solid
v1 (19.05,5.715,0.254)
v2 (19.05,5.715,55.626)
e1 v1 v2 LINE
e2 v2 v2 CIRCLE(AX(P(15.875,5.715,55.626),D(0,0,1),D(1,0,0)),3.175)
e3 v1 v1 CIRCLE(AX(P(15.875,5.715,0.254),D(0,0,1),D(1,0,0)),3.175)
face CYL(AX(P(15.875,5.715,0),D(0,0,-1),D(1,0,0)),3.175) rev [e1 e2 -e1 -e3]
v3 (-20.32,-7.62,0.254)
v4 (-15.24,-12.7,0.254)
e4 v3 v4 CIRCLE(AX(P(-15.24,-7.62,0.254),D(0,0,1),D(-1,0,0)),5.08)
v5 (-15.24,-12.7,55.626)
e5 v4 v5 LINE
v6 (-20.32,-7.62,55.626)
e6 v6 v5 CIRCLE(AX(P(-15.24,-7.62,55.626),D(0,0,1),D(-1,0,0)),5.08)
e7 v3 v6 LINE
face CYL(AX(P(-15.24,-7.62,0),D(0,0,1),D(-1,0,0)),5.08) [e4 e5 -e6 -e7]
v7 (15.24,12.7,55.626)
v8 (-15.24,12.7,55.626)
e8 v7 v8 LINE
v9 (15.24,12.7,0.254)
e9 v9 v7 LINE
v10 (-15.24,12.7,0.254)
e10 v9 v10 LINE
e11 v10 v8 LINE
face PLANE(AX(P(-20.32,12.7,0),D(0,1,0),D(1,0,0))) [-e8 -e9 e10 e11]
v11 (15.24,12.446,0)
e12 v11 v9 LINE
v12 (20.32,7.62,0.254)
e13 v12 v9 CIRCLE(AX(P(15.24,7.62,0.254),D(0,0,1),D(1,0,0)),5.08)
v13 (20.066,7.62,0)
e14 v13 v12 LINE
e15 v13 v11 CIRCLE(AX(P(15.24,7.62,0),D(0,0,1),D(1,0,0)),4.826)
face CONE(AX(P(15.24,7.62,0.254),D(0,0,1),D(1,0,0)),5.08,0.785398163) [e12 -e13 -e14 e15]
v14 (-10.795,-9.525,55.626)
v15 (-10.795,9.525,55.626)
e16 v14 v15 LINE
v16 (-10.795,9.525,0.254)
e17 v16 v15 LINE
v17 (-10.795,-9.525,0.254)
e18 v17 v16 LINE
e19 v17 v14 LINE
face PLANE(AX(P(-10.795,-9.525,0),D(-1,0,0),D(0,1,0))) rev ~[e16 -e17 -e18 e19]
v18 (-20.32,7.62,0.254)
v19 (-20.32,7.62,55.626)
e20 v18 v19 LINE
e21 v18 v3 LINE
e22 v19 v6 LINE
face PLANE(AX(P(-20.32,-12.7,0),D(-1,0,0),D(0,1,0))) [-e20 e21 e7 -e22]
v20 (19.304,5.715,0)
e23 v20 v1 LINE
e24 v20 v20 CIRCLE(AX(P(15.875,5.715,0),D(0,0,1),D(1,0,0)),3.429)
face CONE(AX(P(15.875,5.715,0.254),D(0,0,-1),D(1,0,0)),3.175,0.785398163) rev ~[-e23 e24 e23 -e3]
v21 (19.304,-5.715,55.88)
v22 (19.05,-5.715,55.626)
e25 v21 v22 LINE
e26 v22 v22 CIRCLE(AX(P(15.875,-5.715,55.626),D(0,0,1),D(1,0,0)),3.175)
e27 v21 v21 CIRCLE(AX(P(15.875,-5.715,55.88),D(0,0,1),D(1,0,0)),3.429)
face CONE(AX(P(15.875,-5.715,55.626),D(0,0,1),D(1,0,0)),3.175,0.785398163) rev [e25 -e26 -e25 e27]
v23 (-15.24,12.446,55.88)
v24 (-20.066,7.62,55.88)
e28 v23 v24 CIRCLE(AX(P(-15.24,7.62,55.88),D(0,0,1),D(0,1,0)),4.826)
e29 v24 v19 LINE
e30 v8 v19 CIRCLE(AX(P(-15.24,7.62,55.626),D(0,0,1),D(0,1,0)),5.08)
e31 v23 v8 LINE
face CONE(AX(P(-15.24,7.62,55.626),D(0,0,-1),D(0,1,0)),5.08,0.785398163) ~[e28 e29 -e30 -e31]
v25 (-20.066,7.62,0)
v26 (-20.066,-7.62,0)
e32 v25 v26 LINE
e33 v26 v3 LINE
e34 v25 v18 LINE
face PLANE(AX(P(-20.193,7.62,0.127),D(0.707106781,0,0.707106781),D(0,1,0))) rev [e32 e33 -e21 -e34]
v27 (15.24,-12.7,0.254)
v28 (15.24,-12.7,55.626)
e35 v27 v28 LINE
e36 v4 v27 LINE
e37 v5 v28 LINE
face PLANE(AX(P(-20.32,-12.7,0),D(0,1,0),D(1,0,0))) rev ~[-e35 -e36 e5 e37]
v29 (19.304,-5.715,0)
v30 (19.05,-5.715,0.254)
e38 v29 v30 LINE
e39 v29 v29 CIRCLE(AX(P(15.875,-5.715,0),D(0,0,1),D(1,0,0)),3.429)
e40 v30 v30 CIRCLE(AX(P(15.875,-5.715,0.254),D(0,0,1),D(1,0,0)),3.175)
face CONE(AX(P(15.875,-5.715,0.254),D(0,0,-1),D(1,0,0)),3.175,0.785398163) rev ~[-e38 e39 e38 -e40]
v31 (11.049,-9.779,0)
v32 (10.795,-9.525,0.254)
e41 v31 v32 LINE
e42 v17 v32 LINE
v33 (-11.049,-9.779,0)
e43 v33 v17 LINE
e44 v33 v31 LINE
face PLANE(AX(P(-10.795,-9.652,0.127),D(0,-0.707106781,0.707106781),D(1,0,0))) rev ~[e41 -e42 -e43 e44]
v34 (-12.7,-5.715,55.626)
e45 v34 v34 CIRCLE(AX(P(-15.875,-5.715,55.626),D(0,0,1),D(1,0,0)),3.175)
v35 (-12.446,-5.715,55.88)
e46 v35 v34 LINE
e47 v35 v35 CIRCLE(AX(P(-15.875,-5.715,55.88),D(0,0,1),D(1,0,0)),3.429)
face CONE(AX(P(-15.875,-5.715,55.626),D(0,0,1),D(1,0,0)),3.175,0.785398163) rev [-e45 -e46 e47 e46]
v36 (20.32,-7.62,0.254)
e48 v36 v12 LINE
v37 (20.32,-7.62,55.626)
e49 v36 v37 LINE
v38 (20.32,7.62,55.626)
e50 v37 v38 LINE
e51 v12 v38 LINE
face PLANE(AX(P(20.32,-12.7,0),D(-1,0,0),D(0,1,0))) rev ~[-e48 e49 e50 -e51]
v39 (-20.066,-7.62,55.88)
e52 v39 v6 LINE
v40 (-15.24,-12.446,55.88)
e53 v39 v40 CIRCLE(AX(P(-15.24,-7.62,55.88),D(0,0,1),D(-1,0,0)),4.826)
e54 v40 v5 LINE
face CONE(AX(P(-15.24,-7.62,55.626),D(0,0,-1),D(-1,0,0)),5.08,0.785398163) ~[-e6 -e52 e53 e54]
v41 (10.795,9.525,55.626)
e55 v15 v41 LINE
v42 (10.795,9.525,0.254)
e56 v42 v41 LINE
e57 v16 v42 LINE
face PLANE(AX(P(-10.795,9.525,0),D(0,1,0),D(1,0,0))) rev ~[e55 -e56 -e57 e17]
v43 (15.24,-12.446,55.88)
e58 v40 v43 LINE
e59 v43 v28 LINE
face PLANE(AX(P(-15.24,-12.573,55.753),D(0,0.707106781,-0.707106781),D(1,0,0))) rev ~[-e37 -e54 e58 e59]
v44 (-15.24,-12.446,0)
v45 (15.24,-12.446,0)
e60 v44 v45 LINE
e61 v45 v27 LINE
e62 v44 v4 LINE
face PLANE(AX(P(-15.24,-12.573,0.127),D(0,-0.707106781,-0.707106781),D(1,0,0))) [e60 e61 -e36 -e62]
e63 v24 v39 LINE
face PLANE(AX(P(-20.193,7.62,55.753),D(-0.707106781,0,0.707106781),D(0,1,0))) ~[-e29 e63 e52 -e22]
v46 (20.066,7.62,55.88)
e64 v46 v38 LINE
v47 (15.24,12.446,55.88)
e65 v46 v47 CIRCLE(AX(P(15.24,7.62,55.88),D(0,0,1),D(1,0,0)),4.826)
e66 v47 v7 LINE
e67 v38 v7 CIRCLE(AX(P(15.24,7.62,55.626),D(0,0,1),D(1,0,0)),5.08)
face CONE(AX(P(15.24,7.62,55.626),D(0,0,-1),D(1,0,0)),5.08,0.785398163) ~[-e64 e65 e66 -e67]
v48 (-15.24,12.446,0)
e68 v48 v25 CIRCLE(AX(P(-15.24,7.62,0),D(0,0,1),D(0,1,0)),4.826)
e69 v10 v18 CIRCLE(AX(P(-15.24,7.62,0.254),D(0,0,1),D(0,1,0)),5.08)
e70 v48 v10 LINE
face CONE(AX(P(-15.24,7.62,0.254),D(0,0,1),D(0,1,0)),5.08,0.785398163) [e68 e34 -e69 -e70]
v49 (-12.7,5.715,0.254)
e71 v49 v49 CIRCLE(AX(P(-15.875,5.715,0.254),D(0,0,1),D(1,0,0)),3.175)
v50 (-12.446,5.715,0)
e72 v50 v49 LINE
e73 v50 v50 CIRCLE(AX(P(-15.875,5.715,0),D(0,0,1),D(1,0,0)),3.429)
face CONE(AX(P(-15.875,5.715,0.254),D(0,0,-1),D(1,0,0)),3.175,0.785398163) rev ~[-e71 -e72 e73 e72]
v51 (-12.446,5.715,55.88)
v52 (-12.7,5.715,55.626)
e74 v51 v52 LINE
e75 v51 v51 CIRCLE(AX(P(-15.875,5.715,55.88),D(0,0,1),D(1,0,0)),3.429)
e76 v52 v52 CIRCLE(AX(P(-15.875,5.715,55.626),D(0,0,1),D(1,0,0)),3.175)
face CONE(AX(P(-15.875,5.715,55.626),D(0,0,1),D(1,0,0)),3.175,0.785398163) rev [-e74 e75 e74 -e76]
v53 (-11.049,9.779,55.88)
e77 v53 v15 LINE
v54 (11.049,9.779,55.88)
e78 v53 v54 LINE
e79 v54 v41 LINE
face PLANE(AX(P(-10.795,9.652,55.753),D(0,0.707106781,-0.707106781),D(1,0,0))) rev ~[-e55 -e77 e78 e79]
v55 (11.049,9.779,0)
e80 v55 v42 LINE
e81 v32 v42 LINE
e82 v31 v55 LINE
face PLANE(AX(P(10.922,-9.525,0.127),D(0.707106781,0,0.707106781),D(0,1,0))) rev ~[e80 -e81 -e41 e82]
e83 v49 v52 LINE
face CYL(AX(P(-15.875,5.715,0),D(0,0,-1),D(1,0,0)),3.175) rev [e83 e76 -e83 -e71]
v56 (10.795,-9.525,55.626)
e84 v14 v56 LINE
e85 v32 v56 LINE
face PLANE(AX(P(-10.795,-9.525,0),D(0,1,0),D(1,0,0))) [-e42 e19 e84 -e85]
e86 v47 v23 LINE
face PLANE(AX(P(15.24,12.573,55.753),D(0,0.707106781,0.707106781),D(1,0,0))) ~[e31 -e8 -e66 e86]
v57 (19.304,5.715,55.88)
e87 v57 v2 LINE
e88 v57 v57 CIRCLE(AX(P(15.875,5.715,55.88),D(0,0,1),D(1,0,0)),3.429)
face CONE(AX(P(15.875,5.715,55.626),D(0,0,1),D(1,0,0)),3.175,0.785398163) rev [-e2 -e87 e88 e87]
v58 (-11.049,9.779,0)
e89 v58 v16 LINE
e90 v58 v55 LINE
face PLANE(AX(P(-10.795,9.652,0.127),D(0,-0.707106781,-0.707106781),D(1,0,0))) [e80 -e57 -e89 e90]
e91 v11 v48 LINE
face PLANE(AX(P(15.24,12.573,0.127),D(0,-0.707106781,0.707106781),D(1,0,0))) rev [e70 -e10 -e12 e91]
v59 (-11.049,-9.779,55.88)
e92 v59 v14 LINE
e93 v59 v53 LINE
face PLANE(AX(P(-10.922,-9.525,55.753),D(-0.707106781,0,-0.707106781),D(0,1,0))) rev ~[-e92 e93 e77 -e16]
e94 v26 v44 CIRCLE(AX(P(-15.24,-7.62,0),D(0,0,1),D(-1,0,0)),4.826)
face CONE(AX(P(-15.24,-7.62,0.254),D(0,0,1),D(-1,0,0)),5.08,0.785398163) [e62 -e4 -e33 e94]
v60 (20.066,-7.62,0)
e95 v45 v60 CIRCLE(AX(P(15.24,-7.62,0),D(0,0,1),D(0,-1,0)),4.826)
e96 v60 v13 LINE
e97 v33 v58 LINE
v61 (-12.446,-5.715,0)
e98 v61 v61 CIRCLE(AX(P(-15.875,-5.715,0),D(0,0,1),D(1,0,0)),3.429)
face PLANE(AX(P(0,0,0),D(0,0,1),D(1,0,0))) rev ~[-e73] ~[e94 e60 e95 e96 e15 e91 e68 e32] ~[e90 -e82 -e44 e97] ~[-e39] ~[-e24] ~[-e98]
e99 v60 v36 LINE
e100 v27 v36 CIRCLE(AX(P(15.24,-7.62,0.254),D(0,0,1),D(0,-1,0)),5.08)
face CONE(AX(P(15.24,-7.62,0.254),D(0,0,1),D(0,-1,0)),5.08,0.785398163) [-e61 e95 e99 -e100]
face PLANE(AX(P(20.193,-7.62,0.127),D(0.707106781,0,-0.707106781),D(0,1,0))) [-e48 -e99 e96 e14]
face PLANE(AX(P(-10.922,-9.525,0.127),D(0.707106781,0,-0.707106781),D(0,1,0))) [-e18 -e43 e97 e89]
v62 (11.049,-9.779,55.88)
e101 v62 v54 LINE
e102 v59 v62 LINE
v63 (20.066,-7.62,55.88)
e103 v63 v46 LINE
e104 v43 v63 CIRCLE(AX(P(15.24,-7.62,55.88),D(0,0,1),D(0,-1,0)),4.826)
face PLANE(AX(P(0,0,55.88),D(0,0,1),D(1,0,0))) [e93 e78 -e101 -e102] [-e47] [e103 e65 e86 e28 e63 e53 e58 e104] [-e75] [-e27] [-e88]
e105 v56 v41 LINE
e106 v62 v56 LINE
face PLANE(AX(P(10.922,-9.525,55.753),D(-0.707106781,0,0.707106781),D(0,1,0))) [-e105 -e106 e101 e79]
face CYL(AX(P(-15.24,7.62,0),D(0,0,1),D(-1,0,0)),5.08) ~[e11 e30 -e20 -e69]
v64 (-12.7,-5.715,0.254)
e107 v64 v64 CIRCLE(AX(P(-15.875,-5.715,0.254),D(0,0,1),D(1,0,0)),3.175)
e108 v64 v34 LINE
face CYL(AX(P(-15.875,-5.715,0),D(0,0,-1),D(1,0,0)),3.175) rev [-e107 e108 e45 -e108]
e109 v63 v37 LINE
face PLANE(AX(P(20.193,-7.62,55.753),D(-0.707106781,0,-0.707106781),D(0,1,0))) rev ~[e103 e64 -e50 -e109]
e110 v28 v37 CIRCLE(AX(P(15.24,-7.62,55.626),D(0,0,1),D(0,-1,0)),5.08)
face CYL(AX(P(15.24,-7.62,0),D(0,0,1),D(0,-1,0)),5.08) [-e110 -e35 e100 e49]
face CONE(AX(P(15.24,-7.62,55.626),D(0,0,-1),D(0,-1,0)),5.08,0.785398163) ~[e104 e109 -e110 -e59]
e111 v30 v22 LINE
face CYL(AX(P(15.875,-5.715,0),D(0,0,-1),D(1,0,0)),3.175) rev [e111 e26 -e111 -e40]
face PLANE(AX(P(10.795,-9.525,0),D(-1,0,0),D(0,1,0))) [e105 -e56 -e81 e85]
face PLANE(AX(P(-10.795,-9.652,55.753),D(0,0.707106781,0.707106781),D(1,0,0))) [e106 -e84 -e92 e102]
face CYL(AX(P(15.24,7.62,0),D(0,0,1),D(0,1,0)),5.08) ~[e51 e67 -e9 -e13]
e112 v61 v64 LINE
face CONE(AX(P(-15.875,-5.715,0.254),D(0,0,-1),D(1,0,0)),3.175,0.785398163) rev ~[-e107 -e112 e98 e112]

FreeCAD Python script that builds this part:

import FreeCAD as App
import Part
import Sketcher
from FreeCAD import Vector
Q = App.Units.Quantity


def edges_at(feature, points):
    """Names of the edges that pass closest to the given points."""
    edges = feature.Shape.Edges
    near = lambda p: min(range(len(edges)), key=lambda i: edges[i].distToShape(Part.Vertex(*p))[0])
    return sorted({f"Edge{near(p) + 1}" for p in points})

doc = App.newDocument("Part")
body = doc.addObject("PartDesign::Body", "Body")

sketch1 = body.newObject("Sketcher::SketchObject", "Sketch")
sketch1.AttachmentSupport = (doc.getObject("XY_Plane"), [""])
sketch1.MapMode = "FlatFace"
sketch1.addGeometry(Part.LineSegment(Vector(-20.32, 12.7, 0), Vector(-20.32, -12.7, 0)), False)
sketch1.addGeometry(Part.LineSegment(Vector(-20.32, -12.7, 0), Vector(20.32, -12.7, 0)), False)
sketch1.addGeometry(Part.LineSegment(Vector(20.32, -12.7, 0), Vector(20.32, 12.7, 0)), False)
sketch1.addGeometry(Part.LineSegment(Vector(20.32, 12.7, 0), Vector(-20.32, 12.7, 0)), False)
sketch1.addGeometry(Part.Circle(Vector(-15.875, -5.715, 0), Vector(0, 0, 1), 3.175), False)
sketch1.addGeometry(Part.Circle(Vector(15.875, -5.715, 0), Vector(0, 0, 1), 3.175), False)
sketch1.addGeometry(Part.Circle(Vector(-15.875, 5.715, 0), Vector(0, 0, 1), 3.175), False)
sketch1.addGeometry(Part.LineSegment(Vector(10.795, -9.525, 0), Vector(-10.795, -9.525, 0)), False)
sketch1.addGeometry(Part.LineSegment(Vector(-10.795, -9.525, 0), Vector(-10.795, 9.525, 0)), False)
sketch1.addGeometry(Part.LineSegment(Vector(-10.795, 9.525, 0), Vector(10.795, 9.525, 0)), False)
sketch1.addGeometry(Part.LineSegment(Vector(10.795, 9.525, 0), Vector(10.795, -9.525, 0)), False)
sketch1.addGeometry(Part.Circle(Vector(15.875, 5.715, 0), Vector(0, 0, 1), 3.175), False)
sketch1.addConstraint(Sketcher.Constraint("Coincident", 0, 2, 1, 1))
sketch1.addConstraint(Sketcher.Constraint("Coincident", 1, 2, 2, 1))
sketch1.addConstraint(Sketcher.Constraint("Coincident", 2, 2, 3, 1))
sketch1.addConstraint(Sketcher.Constraint("Coincident", 3, 2, 0, 1))
sketch1.addConstraint(Sketcher.Constraint("Coincident", 7, 2, 8, 1))
sketch1.addConstraint(Sketcher.Constraint("Coincident", 8, 2, 9, 1))
sketch1.addConstraint(Sketcher.Constraint("Coincident", 9, 2, 10, 1))
sketch1.addConstraint(Sketcher.Constraint("Coincident", 10, 2, 7, 1))
sketch1.addConstraint(Sketcher.Constraint("Vertical", 0))
sketch1.addConstraint(Sketcher.Constraint("Horizontal", 1))
sketch1.addConstraint(Sketcher.Constraint("Vertical", 2))
sketch1.addConstraint(Sketcher.Constraint("Horizontal", 3))
sketch1.addConstraint(Sketcher.Constraint("Horizontal", 7))
sketch1.addConstraint(Sketcher.Constraint("Vertical", 8))
sketch1.addConstraint(Sketcher.Constraint("Horizontal", 9))
sketch1.addConstraint(Sketcher.Constraint("Vertical", 10))
sketch1.addConstraint(Sketcher.Constraint("Equal", 4, 5))
sketch1.addConstraint(Sketcher.Constraint("Equal", 5, 6))
sketch1.addConstraint(Sketcher.Constraint("Equal", 6, 11))
sketch1.addConstraint(Sketcher.Constraint("Symmetric", 5, 3, 6, 3, -1, 1))
sketch1.addConstraint(Sketcher.Constraint("Symmetric", 4, 3, 11, 3, -1, 1))
sketch1.addConstraint(Sketcher.Constraint("Symmetric", 0, 2, 2, 2, -1, 1))
sketch1.addConstraint(Sketcher.Constraint("Symmetric", 7, 2, 9, 2, -1, 1))
sketch1.addConstraint(Sketcher.Constraint("Symmetric", 4, 3, 5, 3, -2))
sketch1.addConstraint(Sketcher.Constraint("Diameter", 4, Q("0.25 in")))
sketch1.addConstraint(Sketcher.Constraint("DistanceY", 0, 2, 0, 1, Q("1 in")))
sketch1.addConstraint(Sketcher.Constraint("DistanceX", 1, 1, 1, 2, Q("1.6 in")))
sketch1.addConstraint(Sketcher.Constraint("DistanceX", 7, 2, 7, 1, Q("0.85 in")))
sketch1.addConstraint(Sketcher.Constraint("DistanceY", 8, 1, 8, 2, Q("0.75 in")))
sketch1.addConstraint(Sketcher.Constraint("DistanceX", 4, 3, 7, 2, Q("0.2 in")))
sketch1.addConstraint(Sketcher.Constraint("DistanceY", 7, 2, 6, 3, Q("0.6 in")))
pad1 = body.newObject("PartDesign::Pad", "Pad")
pad1.Profile = sketch1
pad1.Length = Q("2.2 in")
doc.recompute()

fillet = body.newObject("PartDesign::Fillet", "Fillet")
fillet.Base = (pad1, edges_at(pad1, [
    (20.32, -12.7, 27.94),
    (-20.32, -12.7, 27.94),
    (-20.32, 12.7, 27.94),
    (20.32, 12.7, 27.94),
]))
fillet.Radius = Q("0.2 in")
doc.recompute()

chamfer = body.newObject("PartDesign::Chamfer", "Chamfer")
chamfer.Base = (fillet, edges_at(fillet, [
    (-19.05, 5.715, 0),
    (-19.05, 5.715, 55.88),
    (12.7, 5.715, 0),
    (12.7, 5.715, 55.88),
    (12.7, -5.715, 0),
    (12.7, -5.715, 55.88),
    (-19.05, -5.715, 0),
    (-19.05, -5.715, 55.88),
    (10.795, 0, 0),
    (0, 9.525, 0),
    (-10.795, 0, 0),
    (0, -9.525, 0),
    (10.795, 0, 55.88),
    (0, 9.525, 55.88),
    (-10.795, 0, 55.88),
    (0, -9.525, 55.88),
    (0, -12.7, 0),
    (0, -12.7, 55.88),
    (20.32, 0, 0),
    (-20.32, 0, 0),
    (0, 12.7, 0),
    (-18.832, 11.212, 0),
    (18.832, 11.212, 0),
    (18.832, -11.212, 0),
    (-18.832, -11.212, 0),
    (-20.32, 0, 55.88),
    (20.32, 0, 55.88),
    (0, 12.7, 55.88),
    (-18.832, 11.212, 55.88),
    (18.832, 11.212, 55.88),
    (18.832, -11.212, 55.88),
    (-18.832, -11.212, 55.88),
]))
chamfer.Size = Q("0.01 in")

doc.recompute()
